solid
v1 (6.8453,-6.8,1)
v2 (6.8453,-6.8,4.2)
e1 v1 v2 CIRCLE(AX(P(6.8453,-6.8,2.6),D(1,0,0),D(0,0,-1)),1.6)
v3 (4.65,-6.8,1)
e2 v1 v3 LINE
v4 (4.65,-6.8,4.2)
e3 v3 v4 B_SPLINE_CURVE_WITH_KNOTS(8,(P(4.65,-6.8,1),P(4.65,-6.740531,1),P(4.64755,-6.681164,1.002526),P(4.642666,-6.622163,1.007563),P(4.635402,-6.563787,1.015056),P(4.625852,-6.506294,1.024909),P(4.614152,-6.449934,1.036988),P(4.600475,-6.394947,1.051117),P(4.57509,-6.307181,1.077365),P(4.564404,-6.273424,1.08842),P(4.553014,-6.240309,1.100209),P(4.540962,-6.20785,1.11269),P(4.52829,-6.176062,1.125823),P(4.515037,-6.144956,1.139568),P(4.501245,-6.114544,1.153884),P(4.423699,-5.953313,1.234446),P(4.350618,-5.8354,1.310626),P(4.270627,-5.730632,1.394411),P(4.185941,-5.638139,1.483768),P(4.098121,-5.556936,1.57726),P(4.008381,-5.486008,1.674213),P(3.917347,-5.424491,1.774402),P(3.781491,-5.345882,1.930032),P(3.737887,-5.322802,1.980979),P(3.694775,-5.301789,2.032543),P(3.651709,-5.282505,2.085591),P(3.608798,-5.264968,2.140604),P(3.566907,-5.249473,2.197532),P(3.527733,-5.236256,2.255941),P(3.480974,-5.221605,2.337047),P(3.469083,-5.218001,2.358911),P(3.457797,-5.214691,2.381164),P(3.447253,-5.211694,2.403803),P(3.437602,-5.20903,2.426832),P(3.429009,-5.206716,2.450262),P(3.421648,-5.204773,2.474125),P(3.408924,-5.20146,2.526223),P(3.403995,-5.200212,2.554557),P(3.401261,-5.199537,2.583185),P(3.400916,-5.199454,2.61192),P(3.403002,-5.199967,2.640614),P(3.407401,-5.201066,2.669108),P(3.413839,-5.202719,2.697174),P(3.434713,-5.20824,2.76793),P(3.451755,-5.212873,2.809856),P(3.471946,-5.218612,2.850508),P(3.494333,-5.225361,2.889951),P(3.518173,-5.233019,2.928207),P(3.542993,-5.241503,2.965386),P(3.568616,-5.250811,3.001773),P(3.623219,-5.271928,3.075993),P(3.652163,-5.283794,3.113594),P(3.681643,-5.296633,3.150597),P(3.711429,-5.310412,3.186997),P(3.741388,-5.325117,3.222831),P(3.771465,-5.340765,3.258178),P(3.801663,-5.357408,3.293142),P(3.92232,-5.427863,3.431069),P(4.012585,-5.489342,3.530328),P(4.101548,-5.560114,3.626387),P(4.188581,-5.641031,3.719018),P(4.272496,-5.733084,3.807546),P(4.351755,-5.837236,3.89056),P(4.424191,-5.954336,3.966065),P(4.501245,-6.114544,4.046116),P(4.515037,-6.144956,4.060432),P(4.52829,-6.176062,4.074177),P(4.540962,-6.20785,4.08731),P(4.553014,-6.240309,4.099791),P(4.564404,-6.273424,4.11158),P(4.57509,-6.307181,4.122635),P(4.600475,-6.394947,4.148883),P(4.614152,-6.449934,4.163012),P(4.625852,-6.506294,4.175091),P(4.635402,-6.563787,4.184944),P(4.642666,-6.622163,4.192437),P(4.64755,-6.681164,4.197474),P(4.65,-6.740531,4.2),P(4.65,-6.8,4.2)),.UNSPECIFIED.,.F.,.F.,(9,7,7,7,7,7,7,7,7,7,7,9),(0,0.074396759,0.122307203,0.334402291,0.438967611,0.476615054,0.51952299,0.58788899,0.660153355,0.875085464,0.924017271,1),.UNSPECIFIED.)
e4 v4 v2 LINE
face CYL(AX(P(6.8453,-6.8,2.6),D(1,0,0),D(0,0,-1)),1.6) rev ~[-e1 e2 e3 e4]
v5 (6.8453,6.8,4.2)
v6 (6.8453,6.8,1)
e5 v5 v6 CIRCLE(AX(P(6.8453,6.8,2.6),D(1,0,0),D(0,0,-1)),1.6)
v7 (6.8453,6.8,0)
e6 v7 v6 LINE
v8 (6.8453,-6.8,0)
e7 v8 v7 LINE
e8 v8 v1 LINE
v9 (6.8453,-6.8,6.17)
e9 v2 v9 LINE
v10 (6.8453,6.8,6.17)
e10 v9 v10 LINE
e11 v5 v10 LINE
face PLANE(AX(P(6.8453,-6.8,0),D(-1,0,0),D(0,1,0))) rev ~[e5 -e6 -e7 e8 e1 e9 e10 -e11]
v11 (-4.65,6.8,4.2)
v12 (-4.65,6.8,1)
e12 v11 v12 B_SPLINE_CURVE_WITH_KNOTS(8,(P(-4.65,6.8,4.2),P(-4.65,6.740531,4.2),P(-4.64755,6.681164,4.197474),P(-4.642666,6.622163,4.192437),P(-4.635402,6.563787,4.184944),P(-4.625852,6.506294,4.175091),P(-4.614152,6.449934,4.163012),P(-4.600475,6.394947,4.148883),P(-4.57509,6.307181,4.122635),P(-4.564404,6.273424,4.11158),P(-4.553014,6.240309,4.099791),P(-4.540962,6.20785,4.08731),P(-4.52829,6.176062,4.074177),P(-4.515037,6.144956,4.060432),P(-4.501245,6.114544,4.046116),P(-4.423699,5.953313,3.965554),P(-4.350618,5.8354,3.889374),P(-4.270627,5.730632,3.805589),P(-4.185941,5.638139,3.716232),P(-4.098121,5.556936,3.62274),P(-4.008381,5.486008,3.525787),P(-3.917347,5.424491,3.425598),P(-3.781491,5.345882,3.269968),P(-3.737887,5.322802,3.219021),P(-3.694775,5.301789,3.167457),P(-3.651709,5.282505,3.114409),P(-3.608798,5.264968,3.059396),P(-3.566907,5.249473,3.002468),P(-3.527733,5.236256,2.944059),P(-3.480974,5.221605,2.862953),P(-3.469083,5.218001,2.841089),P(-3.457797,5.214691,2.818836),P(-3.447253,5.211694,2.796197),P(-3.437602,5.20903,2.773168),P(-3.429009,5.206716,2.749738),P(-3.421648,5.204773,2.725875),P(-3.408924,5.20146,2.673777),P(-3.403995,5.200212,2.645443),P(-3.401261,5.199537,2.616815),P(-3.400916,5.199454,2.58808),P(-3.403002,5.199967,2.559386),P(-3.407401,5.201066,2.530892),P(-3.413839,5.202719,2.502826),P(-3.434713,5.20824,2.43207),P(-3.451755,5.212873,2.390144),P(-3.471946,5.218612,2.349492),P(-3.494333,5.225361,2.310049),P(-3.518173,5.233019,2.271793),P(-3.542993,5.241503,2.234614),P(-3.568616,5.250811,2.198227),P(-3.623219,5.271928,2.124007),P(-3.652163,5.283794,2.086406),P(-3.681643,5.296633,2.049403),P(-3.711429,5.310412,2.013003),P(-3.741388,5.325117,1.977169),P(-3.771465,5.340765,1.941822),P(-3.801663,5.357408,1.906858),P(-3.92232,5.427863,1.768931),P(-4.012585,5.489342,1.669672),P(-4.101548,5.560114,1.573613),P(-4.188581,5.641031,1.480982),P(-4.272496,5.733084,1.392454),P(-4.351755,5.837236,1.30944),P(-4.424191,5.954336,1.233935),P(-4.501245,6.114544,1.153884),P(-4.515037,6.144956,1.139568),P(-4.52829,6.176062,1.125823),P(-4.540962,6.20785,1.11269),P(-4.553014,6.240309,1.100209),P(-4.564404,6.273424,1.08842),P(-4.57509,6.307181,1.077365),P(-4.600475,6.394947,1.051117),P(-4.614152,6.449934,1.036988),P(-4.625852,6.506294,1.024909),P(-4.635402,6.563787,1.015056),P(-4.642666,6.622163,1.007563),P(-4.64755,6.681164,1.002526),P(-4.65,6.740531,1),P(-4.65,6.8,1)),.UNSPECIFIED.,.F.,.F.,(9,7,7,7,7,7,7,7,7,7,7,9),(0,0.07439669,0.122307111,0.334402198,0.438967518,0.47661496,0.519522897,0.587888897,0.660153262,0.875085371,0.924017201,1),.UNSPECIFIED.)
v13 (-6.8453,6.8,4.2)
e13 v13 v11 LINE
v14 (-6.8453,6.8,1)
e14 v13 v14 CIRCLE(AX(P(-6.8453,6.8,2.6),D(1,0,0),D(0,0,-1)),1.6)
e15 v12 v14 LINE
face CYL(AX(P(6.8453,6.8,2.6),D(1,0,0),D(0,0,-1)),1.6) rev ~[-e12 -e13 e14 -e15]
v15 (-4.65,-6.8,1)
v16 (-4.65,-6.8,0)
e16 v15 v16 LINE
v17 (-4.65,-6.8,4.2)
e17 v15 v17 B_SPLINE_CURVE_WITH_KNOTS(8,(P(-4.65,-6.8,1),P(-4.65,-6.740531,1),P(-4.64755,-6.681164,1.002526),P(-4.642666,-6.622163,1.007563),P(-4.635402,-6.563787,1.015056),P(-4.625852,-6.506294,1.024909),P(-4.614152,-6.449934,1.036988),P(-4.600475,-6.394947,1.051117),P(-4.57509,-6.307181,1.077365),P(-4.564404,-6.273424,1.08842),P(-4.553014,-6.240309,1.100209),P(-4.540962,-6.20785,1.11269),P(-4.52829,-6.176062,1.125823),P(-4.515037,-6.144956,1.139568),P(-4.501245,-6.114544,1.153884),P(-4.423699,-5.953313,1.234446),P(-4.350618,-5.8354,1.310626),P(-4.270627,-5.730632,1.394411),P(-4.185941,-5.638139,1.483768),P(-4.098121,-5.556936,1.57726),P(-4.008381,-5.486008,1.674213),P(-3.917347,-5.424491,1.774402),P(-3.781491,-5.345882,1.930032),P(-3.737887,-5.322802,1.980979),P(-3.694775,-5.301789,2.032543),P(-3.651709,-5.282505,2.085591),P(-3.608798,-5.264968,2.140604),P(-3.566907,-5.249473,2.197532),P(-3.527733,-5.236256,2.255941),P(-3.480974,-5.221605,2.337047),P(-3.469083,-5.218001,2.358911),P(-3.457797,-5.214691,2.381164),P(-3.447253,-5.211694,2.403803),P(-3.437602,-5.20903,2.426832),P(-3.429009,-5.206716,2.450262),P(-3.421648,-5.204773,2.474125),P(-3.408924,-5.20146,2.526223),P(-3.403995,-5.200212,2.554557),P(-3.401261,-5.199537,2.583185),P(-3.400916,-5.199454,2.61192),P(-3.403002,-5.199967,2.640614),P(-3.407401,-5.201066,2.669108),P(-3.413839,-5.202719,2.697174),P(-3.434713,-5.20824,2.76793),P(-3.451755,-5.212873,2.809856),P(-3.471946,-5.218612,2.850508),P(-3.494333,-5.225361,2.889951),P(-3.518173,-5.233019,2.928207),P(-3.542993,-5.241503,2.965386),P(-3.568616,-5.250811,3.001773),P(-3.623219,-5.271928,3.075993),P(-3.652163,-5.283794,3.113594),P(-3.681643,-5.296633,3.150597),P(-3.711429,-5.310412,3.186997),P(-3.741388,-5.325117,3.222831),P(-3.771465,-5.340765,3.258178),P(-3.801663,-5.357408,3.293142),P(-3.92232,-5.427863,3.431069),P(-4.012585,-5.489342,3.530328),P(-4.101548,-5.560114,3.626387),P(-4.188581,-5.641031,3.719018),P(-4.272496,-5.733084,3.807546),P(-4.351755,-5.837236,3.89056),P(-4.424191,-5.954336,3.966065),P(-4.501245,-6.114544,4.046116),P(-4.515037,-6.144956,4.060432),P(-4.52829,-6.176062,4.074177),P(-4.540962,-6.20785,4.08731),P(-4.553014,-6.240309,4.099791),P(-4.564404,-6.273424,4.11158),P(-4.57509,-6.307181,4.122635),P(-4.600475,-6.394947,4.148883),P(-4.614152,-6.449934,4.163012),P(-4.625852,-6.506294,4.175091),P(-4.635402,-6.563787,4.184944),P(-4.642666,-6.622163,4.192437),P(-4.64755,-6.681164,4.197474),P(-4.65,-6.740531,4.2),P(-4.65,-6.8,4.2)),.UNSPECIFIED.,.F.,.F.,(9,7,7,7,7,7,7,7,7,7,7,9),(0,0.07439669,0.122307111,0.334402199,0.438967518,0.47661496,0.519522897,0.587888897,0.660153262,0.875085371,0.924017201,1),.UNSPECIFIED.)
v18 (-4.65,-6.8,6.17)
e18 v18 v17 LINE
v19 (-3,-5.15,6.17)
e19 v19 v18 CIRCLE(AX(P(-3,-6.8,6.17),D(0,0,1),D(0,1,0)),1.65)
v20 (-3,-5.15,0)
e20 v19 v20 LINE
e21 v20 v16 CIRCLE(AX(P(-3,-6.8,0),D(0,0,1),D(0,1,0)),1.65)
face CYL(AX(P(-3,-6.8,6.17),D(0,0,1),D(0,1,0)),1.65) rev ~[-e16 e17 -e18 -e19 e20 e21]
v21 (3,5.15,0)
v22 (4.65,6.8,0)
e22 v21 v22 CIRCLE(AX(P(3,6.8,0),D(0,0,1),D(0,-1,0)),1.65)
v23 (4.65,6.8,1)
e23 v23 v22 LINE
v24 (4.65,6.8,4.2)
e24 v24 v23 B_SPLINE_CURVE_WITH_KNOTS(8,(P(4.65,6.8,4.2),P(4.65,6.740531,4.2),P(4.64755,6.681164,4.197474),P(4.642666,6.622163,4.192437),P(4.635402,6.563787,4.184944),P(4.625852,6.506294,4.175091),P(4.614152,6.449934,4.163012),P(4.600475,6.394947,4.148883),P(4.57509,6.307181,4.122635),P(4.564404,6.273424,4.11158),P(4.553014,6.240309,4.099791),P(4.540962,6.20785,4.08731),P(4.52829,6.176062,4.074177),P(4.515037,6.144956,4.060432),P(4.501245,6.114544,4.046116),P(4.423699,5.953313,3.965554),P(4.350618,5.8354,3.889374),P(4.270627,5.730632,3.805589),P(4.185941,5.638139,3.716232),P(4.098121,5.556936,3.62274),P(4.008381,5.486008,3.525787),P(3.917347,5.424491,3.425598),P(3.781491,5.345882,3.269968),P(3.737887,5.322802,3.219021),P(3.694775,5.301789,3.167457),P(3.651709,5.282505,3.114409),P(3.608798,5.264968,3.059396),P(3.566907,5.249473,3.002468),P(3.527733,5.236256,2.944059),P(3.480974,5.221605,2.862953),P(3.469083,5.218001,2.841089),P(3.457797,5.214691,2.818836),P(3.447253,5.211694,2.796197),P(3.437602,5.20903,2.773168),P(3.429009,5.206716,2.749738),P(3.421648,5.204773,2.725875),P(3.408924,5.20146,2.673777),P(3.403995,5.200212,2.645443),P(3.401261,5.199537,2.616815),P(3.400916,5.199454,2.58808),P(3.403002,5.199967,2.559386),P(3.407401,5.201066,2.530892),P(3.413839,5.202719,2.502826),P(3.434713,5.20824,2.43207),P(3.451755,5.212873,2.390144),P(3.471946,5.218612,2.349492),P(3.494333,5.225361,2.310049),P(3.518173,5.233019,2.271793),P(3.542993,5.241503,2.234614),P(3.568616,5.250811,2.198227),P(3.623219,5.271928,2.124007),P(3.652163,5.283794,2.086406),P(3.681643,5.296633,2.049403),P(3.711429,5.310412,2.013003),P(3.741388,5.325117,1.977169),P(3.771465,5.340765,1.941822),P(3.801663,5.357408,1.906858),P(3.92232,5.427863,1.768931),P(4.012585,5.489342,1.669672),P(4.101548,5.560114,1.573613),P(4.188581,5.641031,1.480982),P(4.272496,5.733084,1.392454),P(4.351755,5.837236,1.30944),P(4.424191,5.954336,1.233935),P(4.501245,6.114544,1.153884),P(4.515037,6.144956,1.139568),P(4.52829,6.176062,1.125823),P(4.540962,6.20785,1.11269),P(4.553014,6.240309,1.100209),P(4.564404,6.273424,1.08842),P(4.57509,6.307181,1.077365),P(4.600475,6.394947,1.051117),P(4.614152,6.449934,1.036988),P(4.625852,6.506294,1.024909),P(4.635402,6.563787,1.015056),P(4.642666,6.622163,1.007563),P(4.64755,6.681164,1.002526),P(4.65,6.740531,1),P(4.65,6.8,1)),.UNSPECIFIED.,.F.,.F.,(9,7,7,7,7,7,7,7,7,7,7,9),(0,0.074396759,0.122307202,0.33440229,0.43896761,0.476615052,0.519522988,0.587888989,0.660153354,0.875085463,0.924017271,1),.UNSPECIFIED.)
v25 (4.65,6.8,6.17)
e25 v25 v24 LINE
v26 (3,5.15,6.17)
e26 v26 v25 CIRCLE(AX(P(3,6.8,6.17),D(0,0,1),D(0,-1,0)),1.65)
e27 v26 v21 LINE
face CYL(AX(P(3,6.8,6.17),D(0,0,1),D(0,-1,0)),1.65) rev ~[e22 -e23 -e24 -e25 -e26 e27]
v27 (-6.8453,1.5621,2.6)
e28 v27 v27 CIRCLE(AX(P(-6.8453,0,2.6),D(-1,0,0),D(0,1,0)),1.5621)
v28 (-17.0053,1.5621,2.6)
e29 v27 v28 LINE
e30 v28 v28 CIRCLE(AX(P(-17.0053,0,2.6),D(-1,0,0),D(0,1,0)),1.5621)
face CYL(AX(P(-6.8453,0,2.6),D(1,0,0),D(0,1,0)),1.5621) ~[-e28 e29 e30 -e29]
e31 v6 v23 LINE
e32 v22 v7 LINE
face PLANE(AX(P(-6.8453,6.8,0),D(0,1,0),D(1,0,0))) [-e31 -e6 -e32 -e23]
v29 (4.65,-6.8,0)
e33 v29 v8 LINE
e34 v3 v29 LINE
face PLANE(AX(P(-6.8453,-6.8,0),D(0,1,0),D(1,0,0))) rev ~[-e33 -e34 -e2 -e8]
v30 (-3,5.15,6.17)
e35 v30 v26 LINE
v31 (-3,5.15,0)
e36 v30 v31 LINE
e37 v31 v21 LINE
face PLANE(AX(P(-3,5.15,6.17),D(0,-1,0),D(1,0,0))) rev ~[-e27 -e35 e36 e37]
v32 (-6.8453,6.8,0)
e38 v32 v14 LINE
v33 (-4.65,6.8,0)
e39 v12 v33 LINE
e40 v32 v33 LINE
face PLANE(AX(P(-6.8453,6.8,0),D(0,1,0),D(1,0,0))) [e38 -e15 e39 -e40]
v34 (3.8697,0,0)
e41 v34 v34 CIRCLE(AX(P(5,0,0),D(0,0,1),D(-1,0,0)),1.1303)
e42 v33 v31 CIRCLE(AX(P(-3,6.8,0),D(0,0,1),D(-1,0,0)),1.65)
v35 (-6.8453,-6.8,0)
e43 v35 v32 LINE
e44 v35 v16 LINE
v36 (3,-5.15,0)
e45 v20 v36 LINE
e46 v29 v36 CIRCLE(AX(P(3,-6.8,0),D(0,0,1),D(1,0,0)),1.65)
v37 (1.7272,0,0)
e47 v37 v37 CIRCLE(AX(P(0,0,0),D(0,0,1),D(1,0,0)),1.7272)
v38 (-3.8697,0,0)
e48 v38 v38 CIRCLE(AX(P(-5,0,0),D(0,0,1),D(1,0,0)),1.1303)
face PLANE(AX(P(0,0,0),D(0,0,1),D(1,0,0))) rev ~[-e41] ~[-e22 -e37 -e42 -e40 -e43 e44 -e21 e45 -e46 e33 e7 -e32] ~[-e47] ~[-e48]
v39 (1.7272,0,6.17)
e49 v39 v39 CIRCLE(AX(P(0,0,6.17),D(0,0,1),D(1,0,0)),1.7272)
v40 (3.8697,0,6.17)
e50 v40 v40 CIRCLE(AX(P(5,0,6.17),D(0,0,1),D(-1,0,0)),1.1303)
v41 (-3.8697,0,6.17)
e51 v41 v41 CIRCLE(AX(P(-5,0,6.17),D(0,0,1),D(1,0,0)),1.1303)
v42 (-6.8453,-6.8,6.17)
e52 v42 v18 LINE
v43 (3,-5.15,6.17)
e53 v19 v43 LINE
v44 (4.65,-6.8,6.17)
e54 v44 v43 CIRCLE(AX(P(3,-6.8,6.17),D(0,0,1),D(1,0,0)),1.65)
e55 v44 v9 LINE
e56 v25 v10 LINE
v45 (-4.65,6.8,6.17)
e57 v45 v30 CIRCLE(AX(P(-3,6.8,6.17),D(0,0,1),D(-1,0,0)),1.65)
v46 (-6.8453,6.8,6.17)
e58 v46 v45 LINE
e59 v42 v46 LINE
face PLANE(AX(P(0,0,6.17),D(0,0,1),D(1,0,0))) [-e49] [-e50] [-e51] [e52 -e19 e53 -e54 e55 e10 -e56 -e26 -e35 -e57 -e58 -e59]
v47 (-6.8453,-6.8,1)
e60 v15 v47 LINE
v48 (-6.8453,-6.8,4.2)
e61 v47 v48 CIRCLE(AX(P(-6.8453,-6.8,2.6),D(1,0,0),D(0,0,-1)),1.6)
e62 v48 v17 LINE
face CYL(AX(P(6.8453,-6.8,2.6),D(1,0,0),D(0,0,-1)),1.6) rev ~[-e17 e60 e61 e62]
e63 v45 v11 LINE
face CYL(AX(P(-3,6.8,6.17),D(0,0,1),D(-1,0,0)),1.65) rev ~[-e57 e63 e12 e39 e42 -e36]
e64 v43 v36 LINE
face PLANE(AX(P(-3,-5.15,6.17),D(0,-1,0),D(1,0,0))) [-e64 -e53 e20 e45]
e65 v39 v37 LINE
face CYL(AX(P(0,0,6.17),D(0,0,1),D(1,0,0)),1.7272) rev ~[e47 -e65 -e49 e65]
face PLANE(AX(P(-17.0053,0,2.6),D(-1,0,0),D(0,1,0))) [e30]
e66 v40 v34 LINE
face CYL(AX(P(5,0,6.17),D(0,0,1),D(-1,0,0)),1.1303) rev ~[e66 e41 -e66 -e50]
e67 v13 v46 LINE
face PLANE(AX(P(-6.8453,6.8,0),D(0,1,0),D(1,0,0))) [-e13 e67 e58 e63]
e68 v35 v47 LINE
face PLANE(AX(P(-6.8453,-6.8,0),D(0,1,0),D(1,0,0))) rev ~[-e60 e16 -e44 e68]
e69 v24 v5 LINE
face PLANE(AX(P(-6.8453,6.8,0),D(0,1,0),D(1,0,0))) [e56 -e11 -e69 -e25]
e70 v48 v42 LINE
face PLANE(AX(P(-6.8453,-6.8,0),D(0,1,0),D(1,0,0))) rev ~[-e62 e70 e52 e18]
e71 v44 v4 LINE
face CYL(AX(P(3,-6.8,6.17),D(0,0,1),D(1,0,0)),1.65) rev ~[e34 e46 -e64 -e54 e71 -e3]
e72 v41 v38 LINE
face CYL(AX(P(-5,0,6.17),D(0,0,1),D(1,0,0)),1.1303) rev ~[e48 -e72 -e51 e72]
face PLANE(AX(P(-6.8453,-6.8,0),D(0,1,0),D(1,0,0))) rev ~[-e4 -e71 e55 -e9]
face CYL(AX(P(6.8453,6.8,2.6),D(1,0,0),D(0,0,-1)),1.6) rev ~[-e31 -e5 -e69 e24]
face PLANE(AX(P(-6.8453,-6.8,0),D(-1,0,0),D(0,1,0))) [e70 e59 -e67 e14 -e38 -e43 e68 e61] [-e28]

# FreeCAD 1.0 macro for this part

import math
import FreeCAD as App
import Part
import Sketcher

V = App.Vector

doc = App.newDocument("Part")
params = doc.addObject("Spreadsheet::Sheet", "Params")
for row, (alias, value) in enumerate([
    ("sketch1_height", "13.6 mm"),
    ("pad1_length", "6.17 mm"),
    ("sketch2_diameter", "3.2 mm"),
    ("sketch3_width", "6 mm"),
    ("sketch3_radius", "1.65 mm"),
    ("pad2_length", "10.16 mm"),
], start=1):
    params.set(f"A{row}", alias)
    params.set(f"B{row}", "=" + value)
    params.setAlias(f"B{row}", alias)

body = doc.addObject("PartDesign::Body", "Body")

# Sketch on XY plane
sketch1 = body.newObject("Sketcher::SketchObject", "Sketch")
sketch1.AttachmentSupport = (doc.getObject("XY_Plane"), [""])
sketch1.MapMode = "FlatFace"
sketch1.addGeometry([
    Part.LineSegment(V(-7, 7, 0), V(-7, -7, 0)),
    Part.LineSegment(V(-7, -7, 0), V(7, -7, 0)),
    Part.LineSegment(V(7, -7, 0), V(7, 7, 0)),
    Part.LineSegment(V(7, 7, 0), V(-7, 7, 0)),
], False)
sketch1.addConstraint([
    Sketcher.Constraint("Coincident", 0, 2, 1, 1),
    Sketcher.Constraint("Coincident", 1, 2, 2, 1),
    Sketcher.Constraint("Coincident", 2, 2, 3, 1),
    Sketcher.Constraint("Coincident", 3, 2, 0, 1),
    Sketcher.Constraint("Vertical", 0),
    Sketcher.Constraint("Horizontal", 1),
    Sketcher.Constraint("Vertical", 2),
    Sketcher.Constraint("Horizontal", 3),
    Sketcher.Constraint("Symmetric", 0, 2, 2, 2, -1, 1),
    Sketcher.Constraint("DistanceY", 0, 2, 0, 1, 13.6),
    Sketcher.Constraint("DistanceX", 1, 1, 1, 2, 13.6906),
])
sketch1.setExpression("Constraints[9]", "Params.sketch1_height")
pad1 = body.newObject("PartDesign::Pad", "Pad")
pad1.Profile = sketch1
pad1.setExpression("Length", "Params.pad1_length")

# Sketch on YZ plane
sketch2 = body.newObject("Sketcher::SketchObject", "Sketch001")
sketch2.AttachmentSupport = (doc.getObject("YZ_Plane"), [""])
sketch2.MapMode = "FlatFace"
sketch2.AttachmentOffset = App.Placement(V(0, 0, 6.8453), App.Rotation())
sketch2.addGeometry([
    Part.Circle(V(6.8, 2.6, 0), V(0, 0, 1), 1.6),
    Part.Circle(V(-6.8, 2.6, 0), V(0, 0, 1), 1.6),
], False)
sketch2.addConstraint([
    Sketcher.Constraint("Equal", 0, 1),
    Sketcher.Constraint("Symmetric", 0, 3, 1, 3, -2),
    Sketcher.Constraint("Diameter", 0, 3.2),
    Sketcher.Constraint("DistanceX", -1, 1, 0, 3, 6.8),
    Sketcher.Constraint("DistanceY", -1, 1, 0, 3, 2.6),
])
sketch2.setExpression("Constraints[2]", "Params.sketch2_diameter")
pocket1 = body.newObject("PartDesign::Pocket", "Pocket")
pocket1.Profile = sketch2
pocket1.Type = "ThroughAll"

# Sketch on XY plane
sketch3 = body.newObject("Sketcher::SketchObject", "Sketch002")
sketch3.AttachmentSupport = (doc.getObject("XY_Plane"), [""])
sketch3.MapMode = "FlatFace"
sketch3.AttachmentOffset = App.Placement(V(0, 0, 6.17), App.Rotation())
sketch3.addGeometry([
    Part.ArcOfCircle(Part.Circle(V(-3, 6.8, 0), V(0, 0, 1), 1.6), math.radians(180), math.radians(270)),  # 0
    Part.LineSegment(V(-3, 5.2, 0), V(3, 5.2, 0)),  # 1
    Part.ArcOfCircle(Part.Circle(V(3, 6.8, 0), V(0, 0, 1), 1.6), math.radians(-90), math.radians(0)),  # 2
    Part.LineSegment(V(4.7, 6.8, 0), V(-4.7, 6.8, 0)),  # 3
    Part.ArcOfCircle(Part.Circle(V(3, -6.8, 0), V(0, 0, 1), 1.6), math.radians(0), math.radians(90)),  # 4
    Part.LineSegment(V(3, -5.2, 0), V(-3, -5.2, 0)),  # 5
    Part.ArcOfCircle(Part.Circle(V(-3, -6.8, 0), V(0, 0, 1), 1.6), math.radians(90), math.radians(180)),  # 6
    Part.LineSegment(V(-4.7, -6.8, 0), V(4.7, -6.8, 0)),  # 7
], False)
sketch3.addConstraint([
    Sketcher.Constraint("Tangent", 0, 2, 1, 1),
    Sketcher.Constraint("Tangent", 1, 2, 2, 1),
    Sketcher.Constraint("Coincident", 2, 2, 3, 1),
    Sketcher.Constraint("Coincident", 3, 2, 0, 1),
    Sketcher.Constraint("Tangent", 4, 2, 5, 1),
    Sketcher.Constraint("Tangent", 5, 2, 6, 1),
    Sketcher.Constraint("Coincident", 6, 2, 7, 1),
    Sketcher.Constraint("Coincident", 7, 2, 4, 1),
    Sketcher.Constraint("Horizontal", 1),
    Sketcher.Constraint("Horizontal", 3),
    Sketcher.Constraint("Horizontal", 5),
    Sketcher.Constraint("Horizontal", 7),
    Sketcher.Constraint("Equal", 0, 2),
    Sketcher.Constraint("Equal", 2, 4),
    Sketcher.Constraint("Equal", 4, 6),
    Sketcher.Constraint("Symmetric", 0, 3, 4, 3, -1, 1),
    Sketcher.Constraint("Symmetric", 2, 2, 6, 2, -1, 1),
    Sketcher.Constraint("Horizontal", 0, 3, 2, 2),
    Sketcher.Constraint("Vertical", 2, 3, 4, 3),
    Sketcher.Constraint("DistanceX", 1, 1, 1, 2, 6.0),
    Sketcher.Constraint("Radius", 0, 1.65),
    Sketcher.Constraint("DistanceY", -1, 1, 0, 3, 6.8),
])
sketch3.setExpression("Constraints[19]", "Params.sketch3_width")
sketch3.setExpression("Constraints[20]", "Params.sketch3_radius")
pocket2 = body.newObject("PartDesign::Pocket", "Pocket001")
pocket2.Profile = sketch3
pocket2.Type = "ThroughAll"

# Sketch on XY plane
sketch4 = body.newObject("Sketcher::SketchObject", "Sketch003")
sketch4.AttachmentSupport = (doc.getObject("XY_Plane"), [""])
sketch4.MapMode = "FlatFace"
sketch4.AttachmentOffset = App.Placement(V(0, 0, 6.17), App.Rotation())
sketch4.addGeometry(Part.Circle(V(0, 0, 0), V(0, 0, 1), 1.7), False)
sketch4.addConstraint([
    Sketcher.Constraint("Coincident", 0, 3, -1, 1),
    Sketcher.Constraint("Diameter", 0, 3.4544),
])
pocket3 = body.newObject("PartDesign::Pocket", "Pocket002")
pocket3.Profile = sketch4
pocket3.Type = "ThroughAll"

# Sketch on YZ plane
sketch5 = body.newObject("Sketcher::SketchObject", "Sketch004")
sketch5.AttachmentSupport = (doc.getObject("YZ_Plane"), [""])
sketch5.MapMode = "FlatFace"
sketch5.AttachmentOffset = App.Placement(V(0, 0, -6.8453), App.Rotation())
sketch5.addGeometry(Part.Circle(V(0, 2.6, 0), V(0, 0, 1), 1.6), False)
sketch5.addConstraint([
    Sketcher.Constraint("PointOnObject", 0, 3, -2),
    Sketcher.Constraint("Diameter", 0, 3.1242),
    Sketcher.Constraint("DistanceY", -1, 1, 0, 3, 2.6),
])
pad2 = body.newObject("PartDesign::Pad", "Pad001")
pad2.Profile = sketch5
pad2.setExpression("Length", "Params.pad2_length")
pad2.Reversed = True

# Sketch on XY plane
sketch6 = body.newObject("Sketcher::SketchObject", "Sketch005")
sketch6.AttachmentSupport = (doc.getObject("XY_Plane"), [""])
sketch6.MapMode = "FlatFace"
sketch6.AttachmentOffset = App.Placement(V(0, 0, 6.17), App.Rotation())
sketch6.addGeometry([
    Part.Circle(V(-5, 0, 0), V(0, 0, 1), 1.1),
    Part.Circle(V(5, 0, 0), V(0, 0, 1), 1.1),
], False)
sketch6.addConstraint([
    Sketcher.Constraint("Equal", 0, 1),
    Sketcher.Constraint("Symmetric", 0, 3, 1, 3, -1, 1),
    Sketcher.Constraint("PointOnObject", 0, 3, -1),
    Sketcher.Constraint("DistanceX", 0, 3, -1, 1, 5.0),
    Sketcher.Constraint("Diameter", 0, 2.2606),
])
pocket4 = body.newObject("PartDesign::Pocket", "Pocket003")
pocket4.Profile = sketch6
pocket4.Type = "ThroughAll"

doc.recompute()
